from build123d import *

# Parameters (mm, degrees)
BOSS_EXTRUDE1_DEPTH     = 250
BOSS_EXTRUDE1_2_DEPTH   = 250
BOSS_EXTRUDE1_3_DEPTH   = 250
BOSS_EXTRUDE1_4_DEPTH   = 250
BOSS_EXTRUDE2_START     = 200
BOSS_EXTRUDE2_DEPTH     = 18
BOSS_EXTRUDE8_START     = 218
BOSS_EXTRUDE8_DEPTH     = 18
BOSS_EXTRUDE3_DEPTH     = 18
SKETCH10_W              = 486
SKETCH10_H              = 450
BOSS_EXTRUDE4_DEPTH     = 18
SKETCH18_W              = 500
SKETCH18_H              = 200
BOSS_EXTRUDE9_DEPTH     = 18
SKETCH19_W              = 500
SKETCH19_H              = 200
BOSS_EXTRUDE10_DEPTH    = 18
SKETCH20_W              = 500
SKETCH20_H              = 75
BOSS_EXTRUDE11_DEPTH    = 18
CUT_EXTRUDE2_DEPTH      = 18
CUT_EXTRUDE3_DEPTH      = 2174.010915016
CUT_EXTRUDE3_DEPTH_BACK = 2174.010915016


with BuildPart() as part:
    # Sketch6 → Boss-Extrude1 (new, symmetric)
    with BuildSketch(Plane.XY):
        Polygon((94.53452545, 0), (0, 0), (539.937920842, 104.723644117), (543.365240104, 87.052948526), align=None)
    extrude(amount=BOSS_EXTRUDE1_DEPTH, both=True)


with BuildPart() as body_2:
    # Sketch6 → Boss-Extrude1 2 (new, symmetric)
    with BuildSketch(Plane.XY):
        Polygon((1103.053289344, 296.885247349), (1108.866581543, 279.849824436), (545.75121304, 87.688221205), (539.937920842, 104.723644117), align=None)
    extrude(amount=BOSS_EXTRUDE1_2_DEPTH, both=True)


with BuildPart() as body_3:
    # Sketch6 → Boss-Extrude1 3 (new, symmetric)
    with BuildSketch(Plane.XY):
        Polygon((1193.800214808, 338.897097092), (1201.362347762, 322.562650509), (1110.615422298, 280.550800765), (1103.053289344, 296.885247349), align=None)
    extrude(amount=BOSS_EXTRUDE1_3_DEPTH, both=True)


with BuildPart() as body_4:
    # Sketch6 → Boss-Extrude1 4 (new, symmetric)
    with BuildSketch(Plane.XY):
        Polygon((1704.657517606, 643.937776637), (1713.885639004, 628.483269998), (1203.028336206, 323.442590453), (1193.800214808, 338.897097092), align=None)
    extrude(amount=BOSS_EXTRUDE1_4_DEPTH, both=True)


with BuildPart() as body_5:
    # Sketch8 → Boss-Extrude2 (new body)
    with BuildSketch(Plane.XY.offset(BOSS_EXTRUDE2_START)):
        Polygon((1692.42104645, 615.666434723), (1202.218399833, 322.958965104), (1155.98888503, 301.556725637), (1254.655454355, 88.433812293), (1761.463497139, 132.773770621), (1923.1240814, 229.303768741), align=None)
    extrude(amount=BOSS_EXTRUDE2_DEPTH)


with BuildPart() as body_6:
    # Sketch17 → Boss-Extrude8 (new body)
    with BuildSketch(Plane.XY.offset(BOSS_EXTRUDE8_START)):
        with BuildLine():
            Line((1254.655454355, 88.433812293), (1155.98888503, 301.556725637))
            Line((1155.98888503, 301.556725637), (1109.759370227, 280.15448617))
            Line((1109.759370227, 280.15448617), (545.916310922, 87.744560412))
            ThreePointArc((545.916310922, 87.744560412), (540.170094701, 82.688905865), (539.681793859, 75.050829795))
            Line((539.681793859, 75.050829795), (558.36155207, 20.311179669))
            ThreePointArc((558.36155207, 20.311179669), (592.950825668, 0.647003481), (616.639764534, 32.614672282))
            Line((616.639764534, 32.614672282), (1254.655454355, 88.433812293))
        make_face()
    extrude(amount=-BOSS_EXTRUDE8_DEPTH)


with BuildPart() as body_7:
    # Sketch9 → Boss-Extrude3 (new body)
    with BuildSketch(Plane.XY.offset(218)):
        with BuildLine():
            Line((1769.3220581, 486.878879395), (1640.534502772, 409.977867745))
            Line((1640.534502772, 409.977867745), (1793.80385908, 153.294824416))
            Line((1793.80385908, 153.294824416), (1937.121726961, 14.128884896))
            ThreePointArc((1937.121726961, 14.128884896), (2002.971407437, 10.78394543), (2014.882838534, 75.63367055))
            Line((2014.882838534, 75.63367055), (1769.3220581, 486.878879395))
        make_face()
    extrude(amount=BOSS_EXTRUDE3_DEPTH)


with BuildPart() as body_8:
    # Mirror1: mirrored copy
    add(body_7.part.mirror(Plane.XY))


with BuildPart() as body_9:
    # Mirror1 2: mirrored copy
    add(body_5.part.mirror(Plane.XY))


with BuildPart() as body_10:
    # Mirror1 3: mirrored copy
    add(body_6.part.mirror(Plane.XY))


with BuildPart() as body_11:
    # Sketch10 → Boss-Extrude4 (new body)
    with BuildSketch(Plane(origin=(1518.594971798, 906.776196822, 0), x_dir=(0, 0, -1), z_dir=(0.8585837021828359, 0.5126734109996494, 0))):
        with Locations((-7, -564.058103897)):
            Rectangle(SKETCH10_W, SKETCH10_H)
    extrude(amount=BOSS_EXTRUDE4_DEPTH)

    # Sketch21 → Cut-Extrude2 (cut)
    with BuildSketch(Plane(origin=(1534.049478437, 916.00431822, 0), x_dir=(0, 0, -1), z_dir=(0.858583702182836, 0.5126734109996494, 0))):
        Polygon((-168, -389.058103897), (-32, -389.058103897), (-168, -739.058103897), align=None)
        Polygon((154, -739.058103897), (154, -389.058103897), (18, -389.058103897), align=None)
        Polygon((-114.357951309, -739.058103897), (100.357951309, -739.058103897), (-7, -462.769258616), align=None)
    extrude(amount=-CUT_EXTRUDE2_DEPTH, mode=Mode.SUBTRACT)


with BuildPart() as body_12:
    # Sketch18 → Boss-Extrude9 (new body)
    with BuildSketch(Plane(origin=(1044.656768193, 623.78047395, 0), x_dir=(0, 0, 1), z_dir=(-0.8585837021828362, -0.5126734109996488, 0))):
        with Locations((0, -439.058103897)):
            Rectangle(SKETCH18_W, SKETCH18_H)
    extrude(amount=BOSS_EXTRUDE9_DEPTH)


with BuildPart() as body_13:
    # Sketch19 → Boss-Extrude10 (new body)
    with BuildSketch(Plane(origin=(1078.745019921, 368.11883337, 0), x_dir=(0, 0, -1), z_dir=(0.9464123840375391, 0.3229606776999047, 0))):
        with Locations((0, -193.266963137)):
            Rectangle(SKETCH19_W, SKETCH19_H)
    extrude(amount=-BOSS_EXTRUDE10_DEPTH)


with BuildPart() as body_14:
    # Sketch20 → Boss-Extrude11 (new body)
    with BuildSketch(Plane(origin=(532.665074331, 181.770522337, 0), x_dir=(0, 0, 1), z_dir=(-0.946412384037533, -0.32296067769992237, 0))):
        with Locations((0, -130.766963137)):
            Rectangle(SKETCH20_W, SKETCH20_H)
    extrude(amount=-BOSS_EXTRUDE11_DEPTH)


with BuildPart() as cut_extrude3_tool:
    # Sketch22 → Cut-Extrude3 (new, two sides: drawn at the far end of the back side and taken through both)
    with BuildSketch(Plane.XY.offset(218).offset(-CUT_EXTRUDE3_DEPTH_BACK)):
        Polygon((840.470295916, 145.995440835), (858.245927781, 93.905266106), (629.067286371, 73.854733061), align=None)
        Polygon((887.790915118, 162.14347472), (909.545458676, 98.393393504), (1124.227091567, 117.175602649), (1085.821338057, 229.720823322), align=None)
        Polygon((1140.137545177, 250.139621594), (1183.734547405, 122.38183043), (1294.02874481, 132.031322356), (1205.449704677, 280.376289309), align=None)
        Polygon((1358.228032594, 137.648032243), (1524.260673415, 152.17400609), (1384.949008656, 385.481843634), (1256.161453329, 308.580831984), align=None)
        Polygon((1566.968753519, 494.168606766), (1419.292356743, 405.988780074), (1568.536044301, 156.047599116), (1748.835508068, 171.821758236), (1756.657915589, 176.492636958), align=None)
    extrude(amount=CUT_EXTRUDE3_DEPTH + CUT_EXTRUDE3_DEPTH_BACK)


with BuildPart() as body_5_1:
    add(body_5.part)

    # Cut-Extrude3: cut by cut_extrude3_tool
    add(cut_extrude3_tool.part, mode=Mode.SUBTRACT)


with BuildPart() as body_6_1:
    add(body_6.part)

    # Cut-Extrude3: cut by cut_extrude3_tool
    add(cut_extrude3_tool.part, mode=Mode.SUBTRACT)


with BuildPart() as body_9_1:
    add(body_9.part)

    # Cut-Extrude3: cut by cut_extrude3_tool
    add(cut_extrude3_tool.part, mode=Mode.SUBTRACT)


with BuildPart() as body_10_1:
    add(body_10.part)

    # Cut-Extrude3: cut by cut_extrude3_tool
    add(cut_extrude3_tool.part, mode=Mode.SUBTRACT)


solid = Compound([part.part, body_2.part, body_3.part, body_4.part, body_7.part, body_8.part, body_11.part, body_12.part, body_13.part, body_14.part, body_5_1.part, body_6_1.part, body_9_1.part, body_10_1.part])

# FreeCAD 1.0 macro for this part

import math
import FreeCAD as App
import Part
import Sketcher
Q = App.Units.Quantity


def add_polygon(sketch, points):
    """Adds a closed chain of lines whose ends are joined by coincident constraints."""
    first, n = sketch.GeometryCount, len(points)
    for a, b in zip(points, points[1:] + points[:1]):
        sketch.addGeometry(Part.LineSegment(App.Vector(*a, 0), App.Vector(*b, 0)), False)
    for i in range(n):
        sketch.addConstraint(Sketcher.Constraint("Coincident", first + i, 2, first + (i + 1) % n, 1))

doc = App.newDocument("Part")
params = doc.addObject("Spreadsheet::Sheet", "Params")
for row, (alias, value) in enumerate([
    ("sketch1_length", "18 mm"),
    ("sketch1_length2", "550 mm"),
    ("pad1_length", "500 mm"),
    ("sketch2_length", "18 mm"),
    ("sketch2_length2", "595 mm"),
    ("pad2_length", "500 mm"),
    ("sketch3_length", "18 mm"),
    ("sketch3_length2", "100 mm"),
    ("pad3_length", "500 mm"),
    ("sketch4_length", "18 mm"),
    ("sketch4_length2", "595 mm"),
    ("pad4_length", "500 mm"),
    ("sketch5_length", "450 mm"),
    ("pad5_length", "18 mm"),
    ("sketch6_radius", "10 mm"),
    ("sketch6_radius2", "30 mm"),
    ("pad6_length", "18 mm"),
    ("sketch7_radius", "50 mm"),
    ("sketch7_length", "150 mm"),
    ("pad7_length", "18 mm"),
    ("sketch8_width", "486 mm"),
    ("sketch8_height", "450 mm"),
    ("pad8_length", "18 mm"),
    ("sketch9_width", "136 mm"),
    ("sketch9_height", "350 mm"),
    ("pocket1_length", "18 mm"),
    ("sketch10_width", "500 mm"),
    ("sketch10_height", "200 mm"),
    ("pad9_length", "18 mm"),
    ("sketch11_width", "500 mm"),
    ("sketch11_height", "200 mm"),
    ("pad10_length", "18 mm"),
    ("sketch12_width", "500 mm"),
    ("sketch12_height", "75 mm"),
    ("pad11_length", "18 mm"),
    ("sketch13_length", "150 mm"),
    ("sketch13_length2", "172 mm"),
    ("sketch13_length3", "370 mm"),
    ("pad12_length", "2174.010915 mm"),
    ("pad12_length2", "2174.010915 mm"),
], start=1):
    params.set(f"A{row}", alias)
    params.set(f"B{row}", "=" + value)
    params.setAlias(f"B{row}", alias)

body = doc.addObject("PartDesign::Body", "Body")

# Sketch on XY plane
sketch1 = body.newObject("Sketcher::SketchObject", "Sketch")
sketch1.AttachmentSupport = (doc.getObject("XY_Plane"), [""])
sketch1.MapMode = "FlatFace"
add_polygon(sketch1, [(0, 0), (95, 0), (543, 87), (540, 105)])  # lines 0-3
sketch1.addConstraint([
    Sketcher.Constraint("Horizontal", 0),
    Sketcher.Constraint("Coincident", 3, 2, -1, 1),
    Sketcher.Constraint("Perpendicular", 1, 2),
    Sketcher.Constraint("Perpendicular", 2, 3),
    Sketcher.Constraint("Distance", 2, Q("18 mm")),
    Sketcher.Constraint("Distance", 3, Q("550 mm")),
    Sketcher.Constraint("DistanceX", 0, 1, 0, 2, Q("94.534525 mm")),
])
sketch1.setExpression("Constraints[8]", "Params.sketch1_length")
sketch1.setExpression("Constraints[9]", "Params.sketch1_length2")
pad1 = body.newObject("PartDesign::Pad", "Pad")
pad1.Profile = sketch1
pad1.setExpression("Length", "Params.pad1_length")
pad1.Midplane = True
body2 = doc.addObject("PartDesign::Body", "Body001")

# Sketch on XY plane
sketch2 = body2.newObject("Sketcher::SketchObject", "Sketch001")
sketch2.AttachmentSupport = (doc.getObject("XY_Plane001"), [""])
sketch2.MapMode = "FlatFace"
add_polygon(sketch2, [(1109, 280), (1103, 297), (540, 105), (546, 88)])  # lines 0-3
sketch2.addConstraint([
    Sketcher.Constraint("Perpendicular", 0, 1),
    Sketcher.Constraint("Perpendicular", 1, 2),
    Sketcher.Constraint("Perpendicular", 2, 3),
    Sketcher.Constraint("Distance", 0, Q("18 mm")),
    Sketcher.Constraint("Distance", 1, Q("595 mm")),
    Sketcher.Constraint("DistanceX", -1, 1, 0, 2, Q("1103.053289 mm")),
    Sketcher.Constraint("DistanceX", -1, 1, 1, 2, Q("539.937921 mm")),
    Sketcher.Constraint("DistanceY", -1, 1, 2, 2, Q("87.688221 mm")),
])
sketch2.setExpression("Constraints[7]", "Params.sketch2_length")
sketch2.setExpression("Constraints[8]", "Params.sketch2_length2")
pad2 = body2.newObject("PartDesign::Pad", "Pad001")
pad2.Profile = sketch2
pad2.setExpression("Length", "Params.pad2_length")
pad2.Midplane = True
body3 = doc.addObject("PartDesign::Body", "Body002")

# Sketch on XY plane
sketch3 = body3.newObject("Sketcher::SketchObject", "Sketch002")
sketch3.AttachmentSupport = (doc.getObject("XY_Plane002"), [""])
sketch3.MapMode = "FlatFace"
add_polygon(sketch3, [(1201, 323), (1194, 339), (1103, 297), (1111, 281)])  # lines 0-3
sketch3.addConstraint([
    Sketcher.Constraint("Perpendicular", 0, 1),
    Sketcher.Constraint("Perpendicular", 1, 2),
    Sketcher.Constraint("Perpendicular", 2, 3),
    Sketcher.Constraint("Distance", 0, Q("18 mm")),
    Sketcher.Constraint("Distance", 1, Q("100 mm")),
    Sketcher.Constraint("DistanceY", -1, 1, 2, 2, Q("280.550801 mm")),
    Sketcher.Constraint("DistanceX", -1, 1, 1, 2, Q("1103.053289 mm")),
    Sketcher.Constraint("DistanceY", -1, 1, 3, 2, Q("322.562651 mm")),
])
sketch3.setExpression("Constraints[7]", "Params.sketch3_length")
sketch3.setExpression("Constraints[8]", "Params.sketch3_length2")
pad3 = body3.newObject("PartDesign::Pad", "Pad002")
pad3.Profile = sketch3
pad3.setExpression("Length", "Params.pad3_length")
pad3.Midplane = True
body4 = doc.addObject("PartDesign::Body", "Body003")

# Sketch on XY plane
sketch4 = body4.newObject("Sketcher::SketchObject", "Sketch003")
sketch4.AttachmentSupport = (doc.getObject("XY_Plane003"), [""])
sketch4.MapMode = "FlatFace"
add_polygon(sketch4, [(1714, 628), (1705, 644), (1194, 339), (1203, 323)])  # lines 0-3
sketch4.addConstraint([
    Sketcher.Constraint("Perpendicular", 0, 1),
    Sketcher.Constraint("Perpendicular", 1, 2),
    Sketcher.Constraint("Perpendicular", 2, 3),
    Sketcher.Constraint("Distance", 0, Q("18 mm")),
    Sketcher.Constraint("Distance", 1, Q("595 mm")),
    Sketcher.Constraint("DistanceY", -1, 1, 2, 2, Q("323.44259 mm")),
    Sketcher.Constraint("DistanceX", -1, 1, 3, 2, Q("1713.885639 mm")),
    Sketcher.Constraint("DistanceY", -1, 1, 3, 2, Q("628.48327 mm")),
])
sketch4.setExpression("Constraints[7]", "Params.sketch4_length")
sketch4.setExpression("Constraints[8]", "Params.sketch4_length2")
pad4 = body4.newObject("PartDesign::Pad", "Pad003")
pad4.Profile = sketch4
pad4.setExpression("Length", "Params.pad4_length")
pad4.Midplane = True
body5 = doc.addObject("PartDesign::Body", "Body004")

# Sketch on XY plane
sketch5 = body5.newObject("Sketcher::SketchObject", "Sketch004")
sketch5.AttachmentSupport = (doc.getObject("XY_Plane004"), [""])
sketch5.MapMode = "FlatFace"
sketch5.AttachmentOffset = App.Placement(App.Vector(0, 0, 200), App.Rotation())
add_polygon(sketch5, [(1692, 616), (1202, 323), (1156, 302), (1255, 88), (1761, 133), (1923, 229)])  # lines 0-5
sketch5.addConstraint([
    Sketcher.Constraint("Perpendicular", 1, 2),
    Sketcher.Constraint("Parallel", 0, 4),
    Sketcher.Constraint("Perpendicular", 4, 5),
    Sketcher.Constraint("Angle", 3, Q("5 deg")),
    Sketcher.Constraint("Distance", 5, Q("450 mm")),
    Sketcher.Constraint("DistanceY", 3, 2, 4, 2, Q("96.529998 mm")),
    Sketcher.Constraint("DistanceX", -1, 1, 0, 2, Q("1202.2184 mm")),
    Sketcher.Constraint("Distance", 0, Q("570.94334 mm")),
    Sketcher.Constraint("Distance", 1, Q("50.94334 mm")),
    Sketcher.Constraint("DistanceY", -1, 1, 3, 2, Q("132.773771 mm")),
    Sketcher.Constraint("DistanceX", -1, 1, 4, 2, Q("1923.124081 mm")),
    Sketcher.Constraint("DistanceY", 1, 2, 0, 2, Q("21.402239 mm")),
])
sketch5.setExpression("Constraints[10]", "Params.sketch5_length")
pad5 = body5.newObject("PartDesign::Pad", "Pad004")
pad5.Profile = sketch5
pad5.setExpression("Length", "Params.pad5_length")
body6 = doc.addObject("PartDesign::Body", "Body005")

# Sketch on XY plane
sketch6 = body6.newObject("Sketcher::SketchObject", "Sketch005")
sketch6.AttachmentSupport = (doc.getObject("XY_Plane005"), [""])
sketch6.MapMode = "FlatFace"
sketch6.AttachmentOffset = App.Placement(App.Vector(0, 0, 218), App.Rotation())
sketch6.addGeometry([
    Part.LineSegment(App.Vector(1255, 88, 0), App.Vector(1156, 302, 0)),  # 0
    Part.LineSegment(App.Vector(1156, 302, 0), App.Vector(1110, 280, 0)),  # 1
    Part.LineSegment(App.Vector(1110, 280, 0), App.Vector(546, 88, 0)),  # 2
    Part.ArcOfCircle(Part.Circle(App.Vector(549, 78, 0), App.Vector(0, 0, 1), 10), math.radians(109), math.radians(199)),  # 3
    Part.LineSegment(App.Vector(540, 75, 0), App.Vector(558, 20, 0)),  # 4
    Part.ArcOfCircle(Part.Circle(App.Vector(587, 30, 0), App.Vector(0, 0, 1), 30), math.radians(-161), math.radians(5)),  # 5
    Part.LineSegment(App.Vector(617, 33, 0), App.Vector(1255, 88, 0)),  # 6
], False)
sketch6.addConstraint([
    Sketcher.Constraint("Coincident", 0, 2, 1, 1),
    Sketcher.Constraint("Coincident", 1, 2, 2, 1),
    Sketcher.Constraint("Tangent", 2, 2, 3, 1),
    Sketcher.Constraint("Tangent", 3, 2, 4, 1),
    Sketcher.Constraint("Tangent", 4, 2, 5, 1),
    Sketcher.Constraint("Coincident", 5, 2, 6, 1),
    Sketcher.Constraint("Coincident", 6, 2, 0, 1),
    Sketcher.Constraint("Perpendicular", 0, 1),
    Sketcher.Constraint("Perpendicular", 2, 4),
    Sketcher.Constraint("Radius", 3, Q("10 mm")),
    Sketcher.Constraint("Radius", 5, Q("30 mm")),
    Sketcher.Constraint("Angle", 6, Q("5 deg")),
    Sketcher.Constraint("DistanceY", -1, 1, 5, 3, Q("30 mm")),
    Sketcher.Constraint("Distance", 1, Q("50.94334 mm")),
    Sketcher.Constraint("Distance", 4, Q("57.83911 mm")),
    Sketcher.Constraint("DistanceX", -1, 1, 1, 2, Q("1109.75937 mm")),
    Sketcher.Constraint("DistanceX", -1, 1, 2, 2, Q("545.916311 mm")),
    Sketcher.Constraint("DistanceY", -1, 1, 2, 2, Q("87.74456 mm")),
    Sketcher.Constraint("DistanceX", 5, 3, 0, 2, Q("569.234961 mm")),
    Sketcher.Constraint("DistanceX", 5, 3, 5, 2, Q("29.885841 mm")),
])
sketch6.setExpression("Constraints[9]", "Params.sketch6_radius")
sketch6.setExpression("Constraints[10]", "Params.sketch6_radius2")
pad6 = body6.newObject("PartDesign::Pad", "Pad005")
pad6.Profile = sketch6
pad6.setExpression("Length", "Params.pad6_length")
pad6.Reversed = True
body7 = doc.addObject("PartDesign::Body", "Body006")

# Sketch on XY plane
sketch7 = body7.newObject("Sketcher::SketchObject", "Sketch006")
sketch7.AttachmentSupport = (doc.getObject("XY_Plane006"), [""])
sketch7.MapMode = "FlatFace"
sketch7.AttachmentOffset = App.Placement(App.Vector(0, 0, 218), App.Rotation())
sketch7.addGeometry([
    Part.LineSegment(App.Vector(1769, 487, 0), App.Vector(1641, 410, 0)),  # 0
    Part.LineSegment(App.Vector(1641, 410, 0), App.Vector(1794, 153, 0)),  # 1
    Part.LineSegment(App.Vector(1794, 153, 0), App.Vector(1937, 14, 0)),  # 2
    Part.ArcOfCircle(Part.Circle(App.Vector(1972, 50, 0), App.Vector(0, 0, 1), 50), math.radians(-134), math.radians(31)),  # 3
    Part.LineSegment(App.Vector(2015, 76, 0), App.Vector(1769, 487, 0)),  # 4
], False)
sketch7.addConstraint([
    Sketcher.Constraint("Coincident", 0, 2, 1, 1),
    Sketcher.Constraint("Coincident", 1, 2, 2, 1),
    Sketcher.Constraint("Tangent", 2, 2, 3, 1),
    Sketcher.Constraint("Tangent", 3, 2, 4, 1),
    Sketcher.Constraint("Coincident", 4, 2, 0, 1),
    Sketcher.Constraint("Perpendicular", 0, 1),
    Sketcher.Constraint("Parallel", 1, 4),
    Sketcher.Constraint("Radius", 3, Q("50 mm")),
    Sketcher.Constraint("Distance", 0, Q("150 mm")),
    Sketcher.Constraint("DistanceY", -1, 1, 3, 3, Q("50 mm")),
    Sketcher.Constraint("Distance", 1, Q("298.961001 mm")),
    Sketcher.Constraint("DistanceX", 4, 2, 1, 2, Q("24.481801 mm")),
    Sketcher.Constraint("Distance", 2, Q("199.76779 mm")),
    Sketcher.Constraint("DistanceX", -1, 1, 1, 2, Q("1793.803859 mm")),
])
sketch7.setExpression("Constraints[7]", "Params.sketch7_radius")
sketch7.setExpression("Constraints[8]", "Params.sketch7_length")
pad7 = body7.newObject("PartDesign::Pad", "Pad006")
pad7.Profile = sketch7
pad7.setExpression("Length", "Params.pad7_length")
body8 = doc.addObject("PartDesign::Body", "Body007")
doc.recompute()

mirroring = doc.addObject("Part::Mirroring", "Mirroring")
mirroring.Source = body7
mirroring.Base = App.Vector(0, 0, 0)
mirroring.Normal = App.Vector(0, 0, 1)
body8.BaseFeature = mirroring
doc.recompute()
body9 = doc.addObject("PartDesign::Body", "Body008")
doc.recompute()

mirroring2 = doc.addObject("Part::Mirroring", "Mirroring001")
mirroring2.Source = body5
mirroring2.Base = App.Vector(0, 0, 0)
mirroring2.Normal = App.Vector(0, 0, 1)
body9.BaseFeature = mirroring2
doc.recompute()
body10 = doc.addObject("PartDesign::Body", "Body009")
doc.recompute()

mirroring3 = doc.addObject("Part::Mirroring", "Mirroring002")
mirroring3.Source = body6
mirroring3.Base = App.Vector(0, 0, 0)
mirroring3.Normal = App.Vector(0, 0, 1)
body10.BaseFeature = mirroring3
doc.recompute()
body11 = doc.addObject("PartDesign::Body", "Body010")

# Sketch on an angled plane
sketch8 = body11.newObject("Sketcher::SketchObject", "Sketch007")
sketch8.Placement = App.Placement(App.Vector(1518.594972, 906.776197, 0), App.Rotation(App.Vector(0, 0, -1), App.Vector(-0.512673411, 0.858583702, 0), App.Vector(0.858583702, 0.512673411, 0), "ZXY"))
add_polygon(sketch8, [(-250, -339), (-250, -789), (236, -789), (236, -339)])  # lines 0-3
sketch8.addConstraint([
    Sketcher.Constraint("Vertical", 0),
    Sketcher.Constraint("Horizontal", 1),
    Sketcher.Constraint("Vertical", 2),
    Sketcher.Constraint("Horizontal", 3),
    Sketcher.Constraint("DistanceX", 1, 1, 1, 2, Q("486 mm")),
    Sketcher.Constraint("DistanceY", 0, 2, 0, 1, Q("450 mm")),
    Sketcher.Constraint("DistanceX", 0, 2, -1, 1, Q("250 mm")),
    Sketcher.Constraint("DistanceY", 0, 2, -1, 1, Q("789.058104 mm")),
])
sketch8.setExpression("Constraints[8]", "Params.sketch8_width")
sketch8.setExpression("Constraints[9]", "Params.sketch8_height")
pad8 = body11.newObject("PartDesign::Pad", "Pad007")
pad8.Profile = sketch8
pad8.setExpression("Length", "Params.pad8_length")

# Sketch on an angled plane
sketch9 = body11.newObject("Sketcher::SketchObject", "Sketch008")
sketch9.Placement = App.Placement(App.Vector(1534.049478, 916.004318, 0), App.Rotation(App.Vector(0, 0, -1), App.Vector(-0.512673411, 0.858583702, 0), App.Vector(0.858583702, 0.512673411, 0), "ZXY"))
add_polygon(sketch9, [(-32, -389), (-168, -389), (-168, -739)])  # lines 0-2
add_polygon(sketch9, [(154, -739), (154, -389), (18, -389)])  # lines 3-5
add_polygon(sketch9, [(-114, -739), (100, -739), (-7, -463)])  # lines 6-8
sketch9.addConstraint([
    Sketcher.Constraint("Horizontal", 0),
    Sketcher.Constraint("Vertical", 1),
    Sketcher.Constraint("Vertical", 3),
    Sketcher.Constraint("Horizontal", 4),
    Sketcher.Constraint("Horizontal", 6),
    Sketcher.Constraint("Parallel", 5, 7),
    Sketcher.Constraint("Parallel", 2, 8),
    Sketcher.Constraint("Horizontal", 2, 2, 3, 2),
    Sketcher.Constraint("Horizontal", 1, 2, 5, 2),
    Sketcher.Constraint("Horizontal", 5, 2, 6, 2),
    Sketcher.Constraint("Equal", 0, 4),
    Sketcher.Constraint("DistanceX", 0, 2, 0, 1, Q("136 mm")),
    Sketcher.Constraint("DistanceY", 1, 2, 1, 1, Q("350 mm")),
    Sketcher.Constraint("DistanceX", 0, 2, -1, 1, Q("168 mm")),
    Sketcher.Constraint("DistanceX", -1, 1, 3, 2, Q("154 mm")),
    Sketcher.Constraint("DistanceX", 7, 2, -1, 1, Q("7 mm")),
    Sketcher.Constraint("DistanceX", 6, 1, 6, 2, Q("214.715903 mm")),
    Sketcher.Constraint("DistanceY", 7, 2, -1, 1, Q("462.769258 mm")),
])
sketch9.setExpression("Constraints[20]", "Params.sketch9_width")
sketch9.setExpression("Constraints[21]", "Params.sketch9_height")
pocket1 = body11.newObject("PartDesign::Pocket", "Pocket")
pocket1.Profile = sketch9
pocket1.setExpression("Length", "Params.pocket1_length")
body12 = doc.addObject("PartDesign::Body", "Body011")

# Sketch on an angled plane
sketch10 = body12.newObject("Sketcher::SketchObject", "Sketch009")
sketch10.Placement = App.Placement(App.Vector(1044.656768, 623.780474, 0), App.Rotation(App.Vector(0, 0, 1), App.Vector(-0.512673411, 0.858583702, 0), App.Vector(-0.858583702, -0.512673411, 0), "ZXY"))
add_polygon(sketch10, [(-250, -339), (-250, -539), (250, -539), (250, -339)])  # lines 0-3
sketch10.addConstraint([
    Sketcher.Constraint("Vertical", 0),
    Sketcher.Constraint("Horizontal", 1),
    Sketcher.Constraint("Vertical", 2),
    Sketcher.Constraint("Horizontal", 3),
    Sketcher.Constraint("DistanceX", 1, 1, 1, 2, Q("500 mm")),
    Sketcher.Constraint("DistanceY", 0, 2, 0, 1, Q("200 mm")),
    Sketcher.Constraint("DistanceX", 0, 2, -1, 1, Q("250 mm")),
    Sketcher.Constraint("DistanceY", 0, 2, -1, 1, Q("539.058104 mm")),
])
sketch10.setExpression("Constraints[8]", "Params.sketch10_width")
sketch10.setExpression("Constraints[9]", "Params.sketch10_height")
pad9 = body12.newObject("PartDesign::Pad", "Pad008")
pad9.Profile = sketch10
pad9.setExpression("Length", "Params.pad9_length")
body13 = doc.addObject("PartDesign::Body", "Body012")

# Sketch on an angled plane
sketch11 = body13.newObject("Sketcher::SketchObject", "Sketch010")
sketch11.Placement = App.Placement(App.Vector(1078.74502, 368.118833, 0), App.Rotation(App.Vector(0, 0, -1), App.Vector(-0.322960678, 0.946412384, 0), App.Vector(0.946412384, 0.322960678, 0), "ZXY"))
add_polygon(sketch11, [(-250, -93), (-250, -293), (250, -293), (250, -93)])  # lines 0-3
sketch11.addConstraint([
    Sketcher.Constraint("Vertical", 0),
    Sketcher.Constraint("Horizontal", 1),
    Sketcher.Constraint("Vertical", 2),
    Sketcher.Constraint("Horizontal", 3),
    Sketcher.Constraint("DistanceX", 1, 1, 1, 2, Q("500 mm")),
    Sketcher.Constraint("DistanceY", 0, 2, 0, 1, Q("200 mm")),
    Sketcher.Constraint("DistanceX", 0, 2, -1, 1, Q("250 mm")),
    Sketcher.Constraint("DistanceY", 0, 2, -1, 1, Q("293.266963 mm")),
])
sketch11.setExpression("Constraints[8]", "Params.sketch11_width")
sketch11.setExpression("Constraints[9]", "Params.sketch11_height")
pad10 = body13.newObject("PartDesign::Pad", "Pad009")
pad10.Profile = sketch11
pad10.setExpression("Length", "Params.pad10_length")
pad10.Reversed = True
body14 = doc.addObject("PartDesign::Body", "Body013")

# Sketch on an angled plane
sketch12 = body14.newObject("Sketcher::SketchObject", "Sketch011")
sketch12.Placement = App.Placement(App.Vector(532.665074, 181.770522, 0), App.Rotation(App.Vector(0, 0, 1), App.Vector(-0.322960678, 0.946412384, 0), App.Vector(-0.946412384, -0.322960678, 0), "ZXY"))
add_polygon(sketch12, [(-250, -93), (-250, -168), (250, -168), (250, -93)])  # lines 0-3
sketch12.addConstraint([
    Sketcher.Constraint("Vertical", 0),
    Sketcher.Constraint("Horizontal", 1),
    Sketcher.Constraint("Vertical", 2),
    Sketcher.Constraint("Horizontal", 3),
    Sketcher.Constraint("DistanceX", 1, 1, 1, 2, Q("500 mm")),
    Sketcher.Constraint("DistanceY", 0, 2, 0, 1, Q("75 mm")),
    Sketcher.Constraint("DistanceX", 0, 2, -1, 1, Q("250 mm")),
    Sketcher.Constraint("DistanceY", 0, 2, -1, 1, Q("168.266963 mm")),
])
sketch12.setExpression("Constraints[8]", "Params.sketch12_width")
sketch12.setExpression("Constraints[9]", "Params.sketch12_height")
pad11 = body14.newObject("PartDesign::Pad", "Pad010")
pad11.Profile = sketch12
pad11.setExpression("Length", "Params.pad11_length")
pad11.Reversed = True
body15 = doc.addObject("PartDesign::Body", "Body014")
body15.AllowCompound = True

# Sketch on XY plane
sketch13 = body15.newObject("Sketcher::SketchObject", "Sketch012")
sketch13.AttachmentSupport = (doc.getObject("XY_Plane014"), [""])
sketch13.MapMode = "FlatFace"
sketch13.AttachmentOffset = App.Placement(App.Vector(0, 0, 218), App.Rotation())
add_polygon(sketch13, [(858, 94), (840, 146), (629, 74)])  # lines 0-2
add_polygon(sketch13, [(888, 162), (910, 98), (1124, 117), (1086, 230)])  # lines 3-6
add_polygon(sketch13, [(1140, 250), (1184, 122), (1294, 132), (1205, 280)])  # lines 7-10
add_polygon(sketch13, [(1358, 138), (1524, 152), (1385, 385), (1256, 309)])  # lines 11-14
add_polygon(sketch13, [(1567, 494), (1419, 406), (1569, 156), (1749, 172), (1757, 176)])  # lines 15-19
sketch13.addConstraint([
    Sketcher.Constraint("Perpendicular", 0, 1),
    Sketcher.Constraint("Perpendicular", 1, 3),
    Sketcher.Constraint("Parallel", 2, 4),
    Sketcher.Constraint("Parallel", 3, 5),
    Sketcher.Constraint("Perpendicular", 5, 6),
    Sketcher.Constraint("Perpendicular", 6, 7),
    Sketcher.Constraint("Parallel", 4, 8),
    Sketcher.Constraint("Parallel", 8, 11),
    Sketcher.Constraint("Parallel", 9, 12),
    Sketcher.Constraint("Perpendicular", 12, 13),
    Sketcher.Constraint("Perpendicular", 13, 14),
    Sketcher.Constraint("Perpendicular", 14, 15),
    Sketcher.Constraint("Perpendicular", 15, 16),
    Sketcher.Constraint("Parallel", 11, 17),
    Sketcher.Constraint("Perpendicular", 16, 18),
    Sketcher.Constraint("Perpendicular", 18, 19),
    Sketcher.Constraint("Angle", 2, Q("5 deg")),
    Sketcher.Constraint("Distance", 13, Q("150 mm")),
    Sketcher.Constraint("Distance", 15, Q("172 mm")),
    Sketcher.Constraint("Distance", 19, Q("370 mm")),
    Sketcher.Constraint("DistanceY", -1, 1, 16, 2, Q("156.047599 mm")),
    Sketcher.Constraint("DistanceY", 8, 2, 5, 2, Q("97.689501 mm")),
    Sketcher.Constraint("DistanceY", 5, 2, 10, 2, Q("20.418798 mm")),
    Sketcher.Constraint("DistanceX", 10, 2, 8, 2, Q("153.8912 mm")),
    Sketcher.Constraint("DistanceY", 7, 2, 14, 2, Q("15.266202 mm")),
    Sketcher.Constraint("DistanceY", 14, 2, 13, 2, Q("170.9328 mm")),
    Sketcher.Constraint("DistanceX", 8, 2, 16, 2, Q("274.507299 mm")),
    Sketcher.Constraint("DistanceX", 12, 2, 17, 2, Q("363.886499 mm")),
    Sketcher.Constraint("DistanceY", 11, 2, 19, 2, Q("341.994601 mm")),
    Sketcher.Constraint("DistanceX", 13, 2, 19, 2, Q("310.8073 mm")),
    Sketcher.Constraint("Distance", 1, Q("223.373038 mm")),
    Sketcher.Constraint("Distance", 3, Q("67.359728 mm")),
    Sketcher.Constraint("Distance", 4, Q("215.501682 mm")),
    Sketcher.Constraint("Distance", 5, Q("118.917739 mm")),
    Sketcher.Constraint("Distance", 9, Q("172.77869 mm")),
    Sketcher.Constraint("Distance", 10, Q("71.97176 mm")),
    Sketcher.Constraint("DistanceY", -1, 1, 0, 2, Q("145.995441 mm")),
    Sketcher.Constraint("DistanceX", -1, 1, 3, 2, Q("909.545459 mm")),
    Sketcher.Constraint("DistanceX", -1, 1, 12, 2, Q("1384.949009 mm")),
    Sketcher.Constraint("DistanceX", 2, 2, 3, 2, Q("51.299531 mm")),
])
sketch13.setExpression("Constraints[37]", "Params.sketch13_length")
sketch13.setExpression("Constraints[38]", "Params.sketch13_length2")
sketch13.setExpression("Constraints[39]", "Params.sketch13_length3")
pad12 = body15.newObject("PartDesign::Pad", "Pad011")
pad12.Profile = sketch13
pad12.Type = "TwoLengths"
pad12.setExpression("Length", "Params.pad12_length")
pad12.setExpression("Length2", "Params.pad12_length2")
doc.recompute()

body16 = doc.addObject("PartDesign::Body", "Body015")
body16.BaseFeature = body15
boolean = body5.newObject("PartDesign::Boolean", "Boolean")
boolean.Type = "Cut"
boolean.addObjects([body16])
doc.recompute()

body17 = doc.addObject("PartDesign::Body", "Body016")
body17.BaseFeature = body15
boolean2 = body6.newObject("PartDesign::Boolean", "Boolean001")
boolean2.Type = "Cut"
boolean2.addObjects([body17])
doc.recompute()

body18 = doc.addObject("PartDesign::Body", "Body017")
body18.BaseFeature = body15
boolean3 = body9.newObject("PartDesign::Boolean", "Boolean002")
boolean3.Type = "Cut"
boolean3.addObjects([body18])
doc.recompute()

boolean4 = body10.newObject("PartDesign::Boolean", "Boolean003")
boolean4.Type = "Cut"
boolean4.addObjects([body15])
mirroring.Visibility = False
mirroring2.Visibility = False
mirroring3.Visibility = False

doc.recompute()
